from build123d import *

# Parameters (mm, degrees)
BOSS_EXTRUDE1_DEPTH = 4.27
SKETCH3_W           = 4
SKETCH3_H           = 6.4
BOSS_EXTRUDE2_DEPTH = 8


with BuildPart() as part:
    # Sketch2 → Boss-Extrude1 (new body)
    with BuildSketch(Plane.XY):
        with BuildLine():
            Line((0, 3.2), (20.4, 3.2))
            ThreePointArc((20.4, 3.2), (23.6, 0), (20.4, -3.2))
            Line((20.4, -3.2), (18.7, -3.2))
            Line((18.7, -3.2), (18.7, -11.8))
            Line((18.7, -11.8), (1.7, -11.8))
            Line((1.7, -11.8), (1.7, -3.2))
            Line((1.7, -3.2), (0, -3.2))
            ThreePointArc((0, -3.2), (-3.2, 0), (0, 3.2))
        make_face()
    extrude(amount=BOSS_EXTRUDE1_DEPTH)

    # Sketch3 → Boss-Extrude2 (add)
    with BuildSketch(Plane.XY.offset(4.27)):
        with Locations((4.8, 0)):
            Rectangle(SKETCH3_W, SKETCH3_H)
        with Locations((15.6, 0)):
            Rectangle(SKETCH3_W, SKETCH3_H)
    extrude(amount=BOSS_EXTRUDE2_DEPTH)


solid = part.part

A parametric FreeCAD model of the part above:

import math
import FreeCAD as App
import Part
import Sketcher
Q = App.Units.Quantity


def add_polygon(sketch, points):
    """Adds a closed chain of lines whose ends are joined by coincident constraints."""
    first, n = sketch.GeometryCount, len(points)
    for a, b in zip(points, points[1:] + points[:1]):
        sketch.addGeometry(Part.LineSegment(App.Vector(*a, 0), App.Vector(*b, 0)), False)
    for i in range(n):
        sketch.addConstraint(Sketcher.Constraint("Coincident", first + i, 2, first + (i + 1) % n, 1))

doc = App.newDocument("Part")
body = doc.addObject("PartDesign::Body", "Body")

# Sketch on XY plane
sketch1 = body.newObject("Sketcher::SketchObject", "Sketch")
sketch1.AttachmentSupport = (doc.getObject("XY_Plane"), [""])
sketch1.MapMode = "FlatFace"
sketch1.addGeometry(Part.LineSegment(App.Vector(20.4, 3.2, 0), App.Vector(0, 3.2, 0)), False)
sketch1.addGeometry(Part.ArcOfCircle(Part.Circle(App.Vector(0, 0, 0), App.Vector(0, 0, 1), 3.2), math.radians(90), math.radians(270)), False)
sketch1.addGeometry(Part.LineSegment(App.Vector(0, -3.2, 0), App.Vector(1.7, -3.2, 0)), False)
sketch1.addGeometry(Part.LineSegment(App.Vector(1.7, -3.2, 0), App.Vector(1.7, -11.8, 0)), False)
sketch1.addGeometry(Part.LineSegment(App.Vector(1.7, -11.8, 0), App.Vector(18.7, -11.8, 0)), False)
sketch1.addGeometry(Part.LineSegment(App.Vector(18.7, -11.8, 0), App.Vector(18.7, -3.2, 0)), False)
sketch1.addGeometry(Part.LineSegment(App.Vector(18.7, -3.2, 0), App.Vector(20.4, -3.2, 0)), False)
sketch1.addGeometry(Part.ArcOfCircle(Part.Circle(App.Vector(20.4, 0, 0), App.Vector(0, 0, 1), 3.2), math.radians(-90), math.radians(90)), False)
sketch1.addConstraint(Sketcher.Constraint("Tangent", 0, 2, 1, 1))
sketch1.addConstraint(Sketcher.Constraint("Tangent", 1, 2, 2, 1))
sketch1.addConstraint(Sketcher.Constraint("Coincident", 2, 2, 3, 1))
sketch1.addConstraint(Sketcher.Constraint("Coincident", 3, 2, 4, 1))
sketch1.addConstraint(Sketcher.Constraint("Coincident", 4, 2, 5, 1))
sketch1.addConstraint(Sketcher.Constraint("Coincident", 5, 2, 6, 1))
sketch1.addConstraint(Sketcher.Constraint("Tangent", 6, 2, 7, 1))
sketch1.addConstraint(Sketcher.Constraint("Tangent", 7, 2, 0, 1))
sketch1.addConstraint(Sketcher.Constraint("Horizontal", 0))
sketch1.addConstraint(Sketcher.Constraint("Horizontal", 2))
sketch1.addConstraint(Sketcher.Constraint("Vertical", 3))
sketch1.addConstraint(Sketcher.Constraint("Horizontal", 4))
sketch1.addConstraint(Sketcher.Constraint("Vertical", 5))
sketch1.addConstraint(Sketcher.Constraint("Horizontal", 6))
sketch1.addConstraint(Sketcher.Constraint("Coincident", 1, 3, -1, 1))
sketch1.addConstraint(Sketcher.Constraint("Equal", 1, 7))
sketch1.addConstraint(Sketcher.Constraint("Equal", 2, 6))
sketch1.addConstraint(Sketcher.Constraint("Radius", 1, Q("3.2 mm")))
sketch1.addConstraint(Sketcher.Constraint("DistanceX", 4, 1, 4, 2, Q("17 mm")))
sketch1.addConstraint(Sketcher.Constraint("DistanceX", 0, 2, 0, 1, Q("20.4 mm")))
sketch1.addConstraint(Sketcher.Constraint("DistanceY", 3, 2, 3, 1, Q("8.6 mm")))
pad1 = body.newObject("PartDesign::Pad", "Pad")
pad1.Profile = sketch1
pad1.Length = 4.27

# Sketch on XY plane
sketch2 = body.newObject("Sketcher::SketchObject", "Sketch001")
sketch2.AttachmentSupport = (doc.getObject("XY_Plane"), [""])
sketch2.MapMode = "FlatFace"
sketch2.AttachmentOffset = App.Placement(App.Vector(0, 0, 4.27), App.Rotation())
add_polygon(sketch2, [(2.8, 3.2), (2.8, -3.2), (6.8, -3.2), (6.8, 3.2)])  # lines 0-3
add_polygon(sketch2, [(13.6, 3.2), (13.6, -3.2), (17.6, -3.2), (17.6, 3.2)])  # lines 4-7
sketch2.addConstraint(Sketcher.Constraint("Vertical", 0))
sketch2.addConstraint(Sketcher.Constraint("Horizontal", 1))
sketch2.addConstraint(Sketcher.Constraint("Vertical", 2))
sketch2.addConstraint(Sketcher.Constraint("Horizontal", 3))
sketch2.addConstraint(Sketcher.Constraint("Vertical", 4))
sketch2.addConstraint(Sketcher.Constraint("Horizontal", 5))
sketch2.addConstraint(Sketcher.Constraint("Vertical", 6))
sketch2.addConstraint(Sketcher.Constraint("Horizontal", 7))
sketch2.addConstraint(Sketcher.Constraint("Horizontal", 1, 2, 4, 2))
sketch2.addConstraint(Sketcher.Constraint("Horizontal", 3, 2, 6, 2))
sketch2.addConstraint(Sketcher.Constraint("Equal", 3, 5))
sketch2.addConstraint(Sketcher.Constraint("DistanceX", 1, 1, 1, 2, Q("4 mm")))
sketch2.addConstraint(Sketcher.Constraint("DistanceY", 0, 2, 0, 1, Q("6.4 mm")))
sketch2.addConstraint(Sketcher.Constraint("DistanceX", -1, 1, 0, 2, Q("2.8 mm")))
sketch2.addConstraint(Sketcher.Constraint("DistanceY", 0, 2, -1, 1, Q("3.2 mm")))
sketch2.addConstraint(Sketcher.Constraint("DistanceX", -1, 1, 4, 2, Q("13.6 mm")))
pad2 = body.newObject("PartDesign::Pad", "Pad001")
pad2.Profile = sketch2
pad2.Length = 8

doc.recompute()
